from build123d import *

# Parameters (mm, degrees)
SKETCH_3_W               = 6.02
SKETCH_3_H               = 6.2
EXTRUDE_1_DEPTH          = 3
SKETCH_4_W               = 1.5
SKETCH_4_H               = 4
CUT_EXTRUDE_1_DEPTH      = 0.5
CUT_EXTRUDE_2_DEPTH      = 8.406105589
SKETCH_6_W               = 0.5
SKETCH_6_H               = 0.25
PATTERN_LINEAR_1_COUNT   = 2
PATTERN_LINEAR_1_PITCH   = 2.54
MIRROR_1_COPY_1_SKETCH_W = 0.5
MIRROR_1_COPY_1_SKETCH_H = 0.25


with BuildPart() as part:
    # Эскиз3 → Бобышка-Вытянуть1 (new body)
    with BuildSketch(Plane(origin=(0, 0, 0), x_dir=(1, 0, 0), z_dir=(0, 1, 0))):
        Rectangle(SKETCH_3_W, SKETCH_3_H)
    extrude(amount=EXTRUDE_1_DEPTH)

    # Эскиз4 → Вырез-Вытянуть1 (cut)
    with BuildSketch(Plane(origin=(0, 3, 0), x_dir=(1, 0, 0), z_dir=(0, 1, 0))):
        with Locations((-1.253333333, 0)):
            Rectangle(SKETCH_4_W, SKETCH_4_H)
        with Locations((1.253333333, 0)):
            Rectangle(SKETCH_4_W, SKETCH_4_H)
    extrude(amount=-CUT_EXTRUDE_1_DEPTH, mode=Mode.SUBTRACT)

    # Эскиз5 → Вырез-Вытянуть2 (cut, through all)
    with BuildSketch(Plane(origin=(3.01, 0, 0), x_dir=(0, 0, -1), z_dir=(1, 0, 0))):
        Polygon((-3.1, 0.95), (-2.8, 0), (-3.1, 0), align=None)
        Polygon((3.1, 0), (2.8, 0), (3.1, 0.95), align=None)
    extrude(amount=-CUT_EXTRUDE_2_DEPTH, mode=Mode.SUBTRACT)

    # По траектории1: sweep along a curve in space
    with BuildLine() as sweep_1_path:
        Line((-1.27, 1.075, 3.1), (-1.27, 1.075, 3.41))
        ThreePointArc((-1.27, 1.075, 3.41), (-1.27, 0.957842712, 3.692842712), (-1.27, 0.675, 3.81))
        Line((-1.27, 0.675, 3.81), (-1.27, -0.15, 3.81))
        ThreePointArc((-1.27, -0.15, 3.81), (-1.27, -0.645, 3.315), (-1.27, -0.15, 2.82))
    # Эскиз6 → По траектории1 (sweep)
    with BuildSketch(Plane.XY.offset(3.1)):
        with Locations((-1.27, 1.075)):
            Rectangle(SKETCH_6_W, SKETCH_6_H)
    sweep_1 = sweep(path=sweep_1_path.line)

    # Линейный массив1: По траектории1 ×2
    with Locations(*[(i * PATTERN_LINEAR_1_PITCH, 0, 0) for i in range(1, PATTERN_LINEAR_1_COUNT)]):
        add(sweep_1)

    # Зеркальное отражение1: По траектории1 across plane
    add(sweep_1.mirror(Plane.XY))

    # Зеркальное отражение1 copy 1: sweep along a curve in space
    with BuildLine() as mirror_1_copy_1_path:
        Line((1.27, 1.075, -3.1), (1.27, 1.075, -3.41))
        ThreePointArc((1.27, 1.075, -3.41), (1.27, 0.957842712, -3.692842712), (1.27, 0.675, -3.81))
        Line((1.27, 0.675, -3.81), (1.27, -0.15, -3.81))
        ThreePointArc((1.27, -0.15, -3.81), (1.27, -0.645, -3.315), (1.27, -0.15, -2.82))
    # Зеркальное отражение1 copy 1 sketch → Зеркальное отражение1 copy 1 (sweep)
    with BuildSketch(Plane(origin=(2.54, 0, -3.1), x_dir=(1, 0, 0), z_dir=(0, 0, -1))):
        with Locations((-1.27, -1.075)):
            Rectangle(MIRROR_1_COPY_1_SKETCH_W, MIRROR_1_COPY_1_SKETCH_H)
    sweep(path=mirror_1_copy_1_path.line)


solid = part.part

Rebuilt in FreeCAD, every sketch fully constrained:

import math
import FreeCAD as App
import Part
import Sketcher
Q = App.Units.Quantity

doc = App.newDocument("Part")
params = doc.addObject("Spreadsheet::Sheet", "Params")
for row, (alias, value) in enumerate([
    ("sketch1_height", "6.2 mm"),
    ("sketch1_width", "6.02 mm"),
    ("pad1_length", "3 mm"),
    ("sketch2_height", "4 mm"),
    ("sketch2_width", "1.5 mm"),
    ("pocket1_length", "0.5 mm"),
    ("sketch3_height", "0.3 mm"),
    ("sketch3_width", "0.95 mm"),
    ("sketch4_width", "0.5 mm"),
    ("sketch4_height", "0.25 mm"),
    ("sketch5_radius", "0.4 mm"),
    ("sketch5_height", "0.31 mm"),
    ("linearpattern_pitch", "2.54 mm"),
    ("sketch6_width", "0.5 mm"),
    ("sketch6_height", "0.25 mm"),
    ("sketch7_radius", "0.4 mm"),
    ("sketch7_height", "0.31 mm"),
], start=1):
    params.set(f"A{row}", alias)
    params.set(f"B{row}", "=" + value)
    params.setAlias(f"B{row}", alias)

body = doc.addObject("PartDesign::Body", "Body")

# Sketch on XZ plane
sketch1 = body.newObject("Sketcher::SketchObject", "Sketch")
sketch1.AttachmentSupport = (doc.getObject("XZ_Plane"), [""])
sketch1.MapMode = "FlatFace"
sketch1.addGeometry([
    Part.LineSegment(App.Vector(-3, -3, 0), App.Vector(-3, 3, 0)),
    Part.LineSegment(App.Vector(-3, 3, 0), App.Vector(3, 3, 0)),
    Part.LineSegment(App.Vector(3, 3, 0), App.Vector(3, -3, 0)),
    Part.LineSegment(App.Vector(3, -3, 0), App.Vector(-3, -3, 0)),
], False)
sketch1.addConstraint([
    Sketcher.Constraint("Coincident", 0, 2, 1, 1),
    Sketcher.Constraint("Coincident", 1, 2, 2, 1),
    Sketcher.Constraint("Coincident", 2, 2, 3, 1),
    Sketcher.Constraint("Coincident", 3, 2, 0, 1),
    Sketcher.Constraint("Vertical", 0),
    Sketcher.Constraint("Horizontal", 1),
    Sketcher.Constraint("Vertical", 2),
    Sketcher.Constraint("Horizontal", 3),
    Sketcher.Constraint("Symmetric", 0, 2, 2, 2, -1, 1),
    Sketcher.Constraint("DistanceY", 0, 1, 0, 2, Q("6.2 mm")),
    Sketcher.Constraint("DistanceX", 1, 1, 1, 2, Q("6.02 mm")),
])
sketch1.setExpression("Constraints[9]", "Params.sketch1_height")
sketch1.setExpression("Constraints[10]", "Params.sketch1_width")
pad1 = body.newObject("PartDesign::Pad", "Pad")
pad1.Profile = sketch1
pad1.setExpression("Length", "Params.pad1_length")
pad1.Reversed = True

# Sketch on XZ plane
sketch2 = body.newObject("Sketcher::SketchObject", "Sketch001")
sketch2.AttachmentSupport = (doc.getObject("XZ_Plane"), [""])
sketch2.MapMode = "FlatFace"
sketch2.AttachmentOffset = App.Placement(App.Vector(0, 0, -3), App.Rotation())
sketch2.addGeometry([
    Part.LineSegment(App.Vector(-2, -2, 0), App.Vector(-2, 2, 0)),  # 0
    Part.LineSegment(App.Vector(-2, 2, 0), App.Vector(-0.5, 2, 0)),  # 1
    Part.LineSegment(App.Vector(-0.5, 2, 0), App.Vector(-0.5, -2, 0)),  # 2
    Part.LineSegment(App.Vector(-0.5, -2, 0), App.Vector(-2, -2, 0)),  # 3
    Part.LineSegment(App.Vector(0.5, -2, 0), App.Vector(0.5, 2, 0)),  # 4
    Part.LineSegment(App.Vector(0.5, 2, 0), App.Vector(2, 2, 0)),  # 5
    Part.LineSegment(App.Vector(2, 2, 0), App.Vector(2, -2, 0)),  # 6
    Part.LineSegment(App.Vector(2, -2, 0), App.Vector(0.5, -2, 0)),  # 7
], False)
sketch2.addConstraint([
    Sketcher.Constraint("Coincident", 0, 2, 1, 1),
    Sketcher.Constraint("Coincident", 1, 2, 2, 1),
    Sketcher.Constraint("Coincident", 2, 2, 3, 1),
    Sketcher.Constraint("Coincident", 3, 2, 0, 1),
    Sketcher.Constraint("Coincident", 4, 2, 5, 1),
    Sketcher.Constraint("Coincident", 5, 2, 6, 1),
    Sketcher.Constraint("Coincident", 6, 2, 7, 1),
    Sketcher.Constraint("Coincident", 7, 2, 4, 1),
    Sketcher.Constraint("Vertical", 0),
    Sketcher.Constraint("Horizontal", 1),
    Sketcher.Constraint("Vertical", 2),
    Sketcher.Constraint("Horizontal", 3),
    Sketcher.Constraint("Vertical", 4),
    Sketcher.Constraint("Horizontal", 5),
    Sketcher.Constraint("Vertical", 6),
    Sketcher.Constraint("Horizontal", 7),
    Sketcher.Constraint("Symmetric", 2, 2, 4, 2, -1, 1),
    Sketcher.Constraint("Symmetric", 0, 2, 6, 2, -1, 1),
    Sketcher.Constraint("Horizontal", 1, 2, 4, 2),
    Sketcher.Constraint("DistanceY", 0, 1, 0, 2, Q("4 mm")),
    Sketcher.Constraint("DistanceX", 1, 1, 1, 2, Q("1.5 mm")),
    Sketcher.Constraint("DistanceX", 0, 2, -1, 1, Q("2.003333 mm")),
])
sketch2.setExpression("Constraints[19]", "Params.sketch2_height")
sketch2.setExpression("Constraints[20]", "Params.sketch2_width")
pocket1 = body.newObject("PartDesign::Pocket", "Pocket")
pocket1.Profile = sketch2
pocket1.setExpression("Length", "Params.pocket1_length")
pocket1.Reversed = True

# Sketch on YZ plane
sketch3 = body.newObject("Sketcher::SketchObject", "Sketch002")
sketch3.AttachmentSupport = (doc.getObject("YZ_Plane"), [""])
sketch3.MapMode = "FlatFace"
sketch3.AttachmentOffset = App.Placement(App.Vector(0, 0, 3.01), App.Rotation())
sketch3.addGeometry([
    Part.LineSegment(App.Vector(0, 2.8, 0), App.Vector(0.95, 3.1, 0)),  # 0
    Part.LineSegment(App.Vector(0.95, 3.1, 0), App.Vector(0, 3.1, 0)),  # 1
    Part.LineSegment(App.Vector(0, 3.1, 0), App.Vector(0, 2.8, 0)),  # 2
    Part.LineSegment(App.Vector(0, -2.8, 0), App.Vector(0, -3.1, 0)),  # 3
    Part.LineSegment(App.Vector(0, -3.1, 0), App.Vector(0.95, -3.1, 0)),  # 4
    Part.LineSegment(App.Vector(0.95, -3.1, 0), App.Vector(0, -2.8, 0)),  # 5
], False)
sketch3.addConstraint([
    Sketcher.Constraint("Coincident", 0, 2, 1, 1),
    Sketcher.Constraint("Coincident", 1, 2, 2, 1),
    Sketcher.Constraint("Coincident", 2, 2, 0, 1),
    Sketcher.Constraint("Coincident", 3, 2, 4, 1),
    Sketcher.Constraint("Coincident", 4, 2, 5, 1),
    Sketcher.Constraint("Coincident", 5, 2, 3, 1),
    Sketcher.Constraint("Horizontal", 1),
    Sketcher.Constraint("Vertical", 2),
    Sketcher.Constraint("Vertical", 3),
    Sketcher.Constraint("Horizontal", 4),
    Sketcher.Constraint("Symmetric", 1, 2, 3, 2, -1, 1),
    Sketcher.Constraint("Symmetric", 2, 2, 5, 2, -1),
    Sketcher.Constraint("Vertical", 0, 2, 4, 2),
    Sketcher.Constraint("DistanceY", 2, 2, 2, 1, Q("0.3 mm")),
    Sketcher.Constraint("DistanceX", 1, 2, 1, 1, Q("0.95 mm")),
    Sketcher.Constraint("DistanceY", -1, 1, 0, 2, Q("3.1 mm")),
])
sketch3.setExpression("Constraints[13]", "Params.sketch3_height")
sketch3.setExpression("Constraints[14]", "Params.sketch3_width")
pocket2 = body.newObject("PartDesign::Pocket", "Pocket001")
pocket2.Profile = sketch3
pocket2.Type = "ThroughAll"

# Sketch on XY plane
sketch4 = body.newObject("Sketcher::SketchObject", "Sketch003")
sketch4.AttachmentSupport = (doc.getObject("XY_Plane"), [""])
sketch4.MapMode = "FlatFace"
sketch4.AttachmentOffset = App.Placement(App.Vector(0, 0, 3.1), App.Rotation())
sketch4.addGeometry([
    Part.LineSegment(App.Vector(-1.52, 1.2, 0), App.Vector(-1.52, 0.95, 0)),
    Part.LineSegment(App.Vector(-1.52, 0.95, 0), App.Vector(-1.02, 0.95, 0)),
    Part.LineSegment(App.Vector(-1.02, 0.95, 0), App.Vector(-1.02, 1.2, 0)),
    Part.LineSegment(App.Vector(-1.02, 1.2, 0), App.Vector(-1.52, 1.2, 0)),
], False)
sketch4.addConstraint([
    Sketcher.Constraint("Coincident", 0, 2, 1, 1),
    Sketcher.Constraint("Coincident", 1, 2, 2, 1),
    Sketcher.Constraint("Coincident", 2, 2, 3, 1),
    Sketcher.Constraint("Coincident", 3, 2, 0, 1),
    Sketcher.Constraint("Vertical", 0),
    Sketcher.Constraint("Horizontal", 1),
    Sketcher.Constraint("Vertical", 2),
    Sketcher.Constraint("Horizontal", 3),
    Sketcher.Constraint("DistanceX", 1, 1, 1, 2, Q("0.5 mm")),
    Sketcher.Constraint("DistanceY", 0, 2, 0, 1, Q("0.25 mm")),
    Sketcher.Constraint("DistanceY", -1, 1, 2, 2, Q("1.2 mm")),
    Sketcher.Constraint("DistanceX", 0, 2, -1, 1, Q("1.52 mm")),
])
sketch4.setExpression("Constraints[8]", "Params.sketch4_width")
sketch4.setExpression("Constraints[9]", "Params.sketch4_height")

# Sketch on YZ plane
sketch5 = body.newObject("Sketcher::SketchObject", "Sketch004")
sketch5.AttachmentSupport = (doc.getObject("YZ_Plane"), [""])
sketch5.MapMode = "FlatFace"
sketch5.AttachmentOffset = App.Placement(App.Vector(0, 0, -1.27), App.Rotation())
sketch5.addGeometry([
    Part.LineSegment(App.Vector(1.07, 3.1, 0), App.Vector(1.07, 3.41, 0)),
    Part.ArcOfCircle(Part.Circle(App.Vector(0.67, 3.41, 0), App.Vector(0, 0, 1), 0.4), math.radians(0), math.radians(90)),
    Part.LineSegment(App.Vector(0.68, 3.81, 0), App.Vector(-0.15, 3.81, 0)),
    Part.ArcOfCircle(Part.Circle(App.Vector(-0.15, 3.31, 0), App.Vector(0, 0, 1), 0.49), math.radians(90), math.radians(270)),
], False)
sketch5.addConstraint([
    Sketcher.Constraint("Tangent", 0, 2, 1, 1),
    Sketcher.Constraint("Tangent", 1, 2, 2, 1),
    Sketcher.Constraint("Tangent", 2, 2, 3, 1),
    Sketcher.Constraint("Vertical", 0),
    Sketcher.Constraint("Horizontal", 2),
    Sketcher.Constraint("Vertical", 2, 2, 3, 2),
    Sketcher.Constraint("Radius", 1, Q("0.4 mm")),
    Sketcher.Constraint("Radius", 3, Q("0.495 mm")),
    Sketcher.Constraint("DistanceY", 0, 1, 0, 2, Q("0.31 mm")),
    Sketcher.Constraint("DistanceY", -1, 1, 0, 1, Q("3.1 mm")),
    Sketcher.Constraint("DistanceX", 2, 2, 2, 1, Q("0.825 mm")),
    Sketcher.Constraint("DistanceX", 3, 3, -1, 1, Q("0.15 mm")),
])
sketch5.setExpression("Constraints[6]", "Params.sketch5_radius")
sketch5.setExpression("Constraints[8]", "Params.sketch5_height")
doc.recompute()

additivepipe = body.newObject("PartDesign::AdditivePipe", "AdditivePipe")
additivepipe.Profile = sketch4
additivepipe.Spine = (sketch5, ["Edge1", "Edge2", "Edge3", "Edge4"])
doc.recompute()

linearpattern = body.newObject("PartDesign::LinearPattern", "LinearPattern")
linearpattern.Originals = [additivepipe]
linearpattern.Direction = (doc.getObject("X_Axis"), [""])
linearpattern.Mode = "offset"
linearpattern.setExpression("Offset", "Params.linearpattern_pitch")
linearpattern.Occurrences = 2
body.Tip = linearpattern
doc.recompute()

mirrored = body.newObject("PartDesign::Mirrored", "Mirrored")
mirrored.Originals = [additivepipe]
mirrored.MirrorPlane = (doc.getObject("XY_Plane"), [""])
body.Tip = mirrored

# Sketch on XY plane
sketch6 = body.newObject("Sketcher::SketchObject", "Sketch005")
sketch6.AttachmentSupport = (doc.getObject("XY_Plane"), [""])
sketch6.MapMode = "FlatFace"
sketch6.AttachmentOffset = App.Placement(App.Vector(0, 0, -3.1), App.Rotation())
sketch6.addGeometry([
    Part.LineSegment(App.Vector(1.02, 0.95, 0), App.Vector(1.02, 1.2, 0)),
    Part.LineSegment(App.Vector(1.02, 1.2, 0), App.Vector(1.52, 1.2, 0)),
    Part.LineSegment(App.Vector(1.52, 1.2, 0), App.Vector(1.52, 0.95, 0)),
    Part.LineSegment(App.Vector(1.52, 0.95, 0), App.Vector(1.02, 0.95, 0)),
], False)
sketch6.addConstraint([
    Sketcher.Constraint("Coincident", 0, 2, 1, 1),
    Sketcher.Constraint("Coincident", 1, 2, 2, 1),
    Sketcher.Constraint("Coincident", 2, 2, 3, 1),
    Sketcher.Constraint("Coincident", 3, 2, 0, 1),
    Sketcher.Constraint("Vertical", 0),
    Sketcher.Constraint("Horizontal", 1),
    Sketcher.Constraint("Vertical", 2),
    Sketcher.Constraint("Horizontal", 3),
    Sketcher.Constraint("DistanceX", 1, 1, 1, 2, Q("0.5 mm")),
    Sketcher.Constraint("DistanceY", 0, 1, 0, 2, Q("0.25 mm")),
    Sketcher.Constraint("DistanceY", -1, 1, 0, 2, Q("1.2 mm")),
    Sketcher.Constraint("DistanceX", -1, 1, 0, 2, Q("1.02 mm")),
])
sketch6.setExpression("Constraints[8]", "Params.sketch6_width")
sketch6.setExpression("Constraints[9]", "Params.sketch6_height")

# Sketch on YZ plane
sketch7 = body.newObject("Sketcher::SketchObject", "Sketch006")
sketch7.AttachmentSupport = (doc.getObject("YZ_Plane"), [""])
sketch7.MapMode = "FlatFace"
sketch7.AttachmentOffset = App.Placement(App.Vector(0, 0, 1.27), App.Rotation())
sketch7.addGeometry([
    Part.LineSegment(App.Vector(1.07, -3.1, 0), App.Vector(1.07, -3.41, 0)),
    Part.ArcOfCircle(Part.Circle(App.Vector(0.67, -3.41, 0), App.Vector(0, 0, 1), 0.4), math.radians(-90), math.radians(0)),
    Part.LineSegment(App.Vector(0.68, -3.81, 0), App.Vector(-0.15, -3.81, 0)),
    Part.ArcOfCircle(Part.Circle(App.Vector(-0.15, -3.31, 0), App.Vector(0, 0, 1), 0.49), math.radians(90), math.radians(270)),
], False)
sketch7.addConstraint([
    Sketcher.Constraint("Tangent", 0, 2, 1, 2),
    Sketcher.Constraint("Tangent", 1, 1, 2, 1),
    Sketcher.Constraint("Tangent", 2, 2, 3, 2),
    Sketcher.Constraint("Vertical", 0),
    Sketcher.Constraint("Horizontal", 2),
    Sketcher.Constraint("Vertical", 2, 2, 3, 1),
    Sketcher.Constraint("Radius", 1, Q("0.4 mm")),
    Sketcher.Constraint("Radius", 3, Q("0.495 mm")),
    Sketcher.Constraint("DistanceY", 0, 2, 0, 1, Q("0.31 mm")),
    Sketcher.Constraint("DistanceY", 0, 1, -1, 1, Q("3.1 mm")),
    Sketcher.Constraint("DistanceX", 2, 2, 2, 1, Q("0.825 mm")),
    Sketcher.Constraint("DistanceX", 3, 3, -1, 1, Q("0.15 mm")),
])
sketch7.setExpression("Constraints[6]", "Params.sketch7_radius")
sketch7.setExpression("Constraints[8]", "Params.sketch7_height")
doc.recompute()

additivepipe2 = body.newObject("PartDesign::AdditivePipe", "AdditivePipe001")
additivepipe2.Profile = sketch6
additivepipe2.Spine = (sketch7, ["Edge1", "Edge2", "Edge3", "Edge4"])

doc.recompute()
